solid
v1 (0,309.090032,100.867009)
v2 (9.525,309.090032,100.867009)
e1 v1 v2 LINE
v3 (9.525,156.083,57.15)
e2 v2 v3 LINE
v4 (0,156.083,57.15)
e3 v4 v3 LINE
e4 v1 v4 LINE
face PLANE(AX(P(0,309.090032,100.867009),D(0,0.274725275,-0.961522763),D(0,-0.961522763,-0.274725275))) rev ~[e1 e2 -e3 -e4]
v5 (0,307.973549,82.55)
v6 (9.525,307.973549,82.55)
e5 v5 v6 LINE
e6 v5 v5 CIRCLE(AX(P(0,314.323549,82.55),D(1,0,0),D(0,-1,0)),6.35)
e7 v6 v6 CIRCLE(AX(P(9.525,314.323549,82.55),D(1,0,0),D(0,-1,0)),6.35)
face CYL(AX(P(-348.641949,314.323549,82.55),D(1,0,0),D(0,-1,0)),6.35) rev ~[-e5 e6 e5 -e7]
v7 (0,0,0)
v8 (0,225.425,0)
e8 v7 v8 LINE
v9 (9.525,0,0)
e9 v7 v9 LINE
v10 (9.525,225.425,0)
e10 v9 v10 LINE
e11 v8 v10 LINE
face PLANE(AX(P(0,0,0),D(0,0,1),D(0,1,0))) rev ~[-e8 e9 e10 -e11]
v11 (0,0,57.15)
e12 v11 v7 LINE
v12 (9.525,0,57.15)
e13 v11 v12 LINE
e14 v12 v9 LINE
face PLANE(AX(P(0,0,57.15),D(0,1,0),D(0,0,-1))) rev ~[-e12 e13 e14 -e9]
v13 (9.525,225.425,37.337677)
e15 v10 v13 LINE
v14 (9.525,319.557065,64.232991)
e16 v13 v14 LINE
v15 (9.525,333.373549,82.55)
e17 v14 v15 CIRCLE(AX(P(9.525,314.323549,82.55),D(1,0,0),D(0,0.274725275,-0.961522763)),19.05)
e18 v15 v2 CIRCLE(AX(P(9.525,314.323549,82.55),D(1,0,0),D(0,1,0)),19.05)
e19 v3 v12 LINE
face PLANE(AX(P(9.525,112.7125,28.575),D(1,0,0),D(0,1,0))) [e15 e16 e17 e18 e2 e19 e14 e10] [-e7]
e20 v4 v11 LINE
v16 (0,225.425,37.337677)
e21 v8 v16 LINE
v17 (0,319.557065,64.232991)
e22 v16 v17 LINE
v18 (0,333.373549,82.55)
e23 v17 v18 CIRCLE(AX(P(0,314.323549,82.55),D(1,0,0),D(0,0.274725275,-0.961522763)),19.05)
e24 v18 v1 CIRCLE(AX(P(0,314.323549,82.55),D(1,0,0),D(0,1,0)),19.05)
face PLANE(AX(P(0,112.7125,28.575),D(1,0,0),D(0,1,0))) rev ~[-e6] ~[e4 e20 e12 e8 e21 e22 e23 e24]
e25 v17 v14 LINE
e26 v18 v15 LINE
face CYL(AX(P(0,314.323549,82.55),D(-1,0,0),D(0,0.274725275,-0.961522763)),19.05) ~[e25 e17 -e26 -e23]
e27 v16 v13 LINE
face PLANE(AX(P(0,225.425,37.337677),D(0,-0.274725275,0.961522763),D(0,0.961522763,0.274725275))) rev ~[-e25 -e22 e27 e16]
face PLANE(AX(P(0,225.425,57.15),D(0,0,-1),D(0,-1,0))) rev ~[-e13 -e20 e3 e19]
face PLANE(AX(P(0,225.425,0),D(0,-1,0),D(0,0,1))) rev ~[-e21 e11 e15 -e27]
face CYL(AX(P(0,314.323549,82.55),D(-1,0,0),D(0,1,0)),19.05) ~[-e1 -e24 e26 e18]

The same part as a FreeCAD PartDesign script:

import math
import FreeCAD as App
import Part
import Sketcher

V = App.Vector
Q = App.Units.Quantity


def add_polygon(sketch, points):
    """Adds a closed chain of lines whose ends are joined by coincident constraints."""
    first, n = sketch.GeometryCount, len(points)
    for a, b in zip(points, points[1:] + points[:1]):
        sketch.addGeometry(Part.LineSegment(App.Vector(*a, 0), App.Vector(*b, 0)), False)
    for i in range(n):
        sketch.addConstraint(Sketcher.Constraint("Coincident", first + i, 2, first + (i + 1) % n, 1))

doc = App.newDocument("Part")
params = doc.addObject("Spreadsheet::Sheet", "Params")
for row, (alias, value) in enumerate([
    ("sketch1_height", "2.25 in"),
    ("sketch1_width", "8.875 in"),
    ("pad1_length", "0.375 in"),
    ("sketch2_radius", "0.75 in"),
    ("sketch2_height", "2.25 in"),
    ("sketch2_width", "6.145 in"),
    ("sketch2_width2", "8.875 in"),
    ("pad2_length", "0.375 in"),
    ("sketch3_diameter", "0.5 in"),
    ("hole_diameter", "0.5 in"),
], start=1):
    params.set(f"A{row}", alias)
    params.set(f"B{row}", "=" + value)
    params.setAlias(f"B{row}", alias)

body = doc.addObject("PartDesign::Body", "Body")

# Sketch on YZ plane
sketch1 = body.newObject("Sketcher::SketchObject", "Sketch")
sketch1.AttachmentSupport = (doc.getObject("YZ_Plane"), [""])
sketch1.MapMode = "FlatFace"
add_polygon(sketch1, [(0, 57), (0, 0), (225, 0), (225, 57)])  # lines 0-3
sketch1.addConstraint([
    Sketcher.Constraint("Vertical", 0),
    Sketcher.Constraint("Horizontal", 1),
    Sketcher.Constraint("Vertical", 2),
    Sketcher.Constraint("Horizontal", 3),
    Sketcher.Constraint("Coincident", 0, 2, -1, 1),
    Sketcher.Constraint("DistanceY", 0, 2, 0, 1, Q("2.25 in")),
    Sketcher.Constraint("DistanceX", 1, 1, 1, 2, Q("8.875 in")),
])
sketch1.setExpression("Constraints[9]", "Params.sketch1_height")
sketch1.setExpression("Constraints[10]", "Params.sketch1_width")
pad1 = body.newObject("PartDesign::Pad", "Pad")
pad1.Profile = sketch1
pad1.setExpression("Length", "Params.pad1_length")

# Sketch on YZ plane
sketch2 = body.newObject("Sketcher::SketchObject", "Sketch001")
sketch2.AttachmentSupport = (doc.getObject("YZ_Plane"), [""])
sketch2.MapMode = "FlatFace"
sketch2.addGeometry([
    Part.ArcOfCircle(Part.Circle(V(314, 83, 0), V(0, 0, 1), 19), math.radians(0), math.radians(106)),  # 0
    Part.LineSegment(V(309, 101, 0), V(156, 57, 0)),  # 1
    Part.LineSegment(V(156, 57, 0), V(0, 57, 0)),  # 2
    Part.LineSegment(V(0, 57, 0), V(0, 0, 0)),  # 3
    Part.LineSegment(V(0, 0, 0), V(225, 0, 0)),  # 4
    Part.LineSegment(V(225, 0, 0), V(225, 37, 0)),  # 5
    Part.LineSegment(V(225, 37, 0), V(320, 64, 0)),  # 6
    Part.ArcOfCircle(Part.Circle(V(314, 83, 0), V(0, 0, 1), 19), math.radians(-74), math.radians(0)),  # 7
], False)
sketch2.addConstraint([
    Sketcher.Constraint("Tangent", 0, 2, 1, 1),
    Sketcher.Constraint("Coincident", 1, 2, 2, 1),
    Sketcher.Constraint("Coincident", 2, 2, 3, 1),
    Sketcher.Constraint("Coincident", 3, 2, 4, 1),
    Sketcher.Constraint("Coincident", 4, 2, 5, 1),
    Sketcher.Constraint("Coincident", 5, 2, 6, 1),
    Sketcher.Constraint("Tangent", 6, 2, 7, 1),
    Sketcher.Constraint("Tangent", 7, 2, 0, 1),
    Sketcher.Constraint("Horizontal", 2),
    Sketcher.Constraint("Vertical", 3),
    Sketcher.Constraint("Horizontal", 4),
    Sketcher.Constraint("Vertical", 5),
    Sketcher.Constraint("Coincident", 3, 2, -1, 1),
    Sketcher.Constraint("Equal", 0, 7),
    Sketcher.Constraint("Parallel", 1, 6),
    Sketcher.Constraint("Horizontal", 0, 3, 7, 2),
    Sketcher.Constraint("Radius", 0, Q("0.75 in")),
    Sketcher.Constraint("DistanceY", 1, 2, 7, 3, Q("1 in")),
    Sketcher.Constraint("DistanceY", 3, 2, 3, 1, Q("2.25 in")),
    Sketcher.Constraint("DistanceX", 2, 2, 2, 1, Q("6.145 in")),
    Sketcher.Constraint("DistanceX", 4, 1, 4, 2, Q("8.875 in")),
    Sketcher.Constraint("Distance", 1, 159.129911),
])
sketch2.setExpression("Constraints[16]", "Params.sketch2_radius")
sketch2.setExpression("Constraints[18]", "Params.sketch2_height")
sketch2.setExpression("Constraints[19]", "Params.sketch2_width")
sketch2.setExpression("Constraints[20]", "Params.sketch2_width2")
pad2 = body.newObject("PartDesign::Pad", "Pad001")
pad2.Profile = sketch2
pad2.setExpression("Length", "Params.pad2_length")

# Sketch on YZ plane
sketch3 = body.newObject("Sketcher::SketchObject", "Sketch002")
sketch3.AttachmentSupport = (doc.getObject("YZ_Plane"), [""])
sketch3.MapMode = "FlatFace"
sketch3.addGeometry(Part.Circle(V(314, 83, 0), V(0, 0, 1), 6), False)
sketch3.addConstraint([
    Sketcher.Constraint("Diameter", 0, Q("0.5 in")),
    Sketcher.Constraint("DistanceY", -1, 1, 0, 3, Q("3.25 in")),
    Sketcher.Constraint("DistanceX", -1, 1, 0, 3, 314.323549),
])
sketch3.setExpression("Constraints[0]", "Params.sketch3_diameter")
doc.recompute()
hole = body.newObject("PartDesign::Hole", "Hole")
hole.Profile = sketch3
hole.ThreadType = "None"
hole.setExpression("Diameter", "Params.hole_diameter")
hole.DepthType = "ThroughAll"
hole.Reversed = True

doc.recompute()
